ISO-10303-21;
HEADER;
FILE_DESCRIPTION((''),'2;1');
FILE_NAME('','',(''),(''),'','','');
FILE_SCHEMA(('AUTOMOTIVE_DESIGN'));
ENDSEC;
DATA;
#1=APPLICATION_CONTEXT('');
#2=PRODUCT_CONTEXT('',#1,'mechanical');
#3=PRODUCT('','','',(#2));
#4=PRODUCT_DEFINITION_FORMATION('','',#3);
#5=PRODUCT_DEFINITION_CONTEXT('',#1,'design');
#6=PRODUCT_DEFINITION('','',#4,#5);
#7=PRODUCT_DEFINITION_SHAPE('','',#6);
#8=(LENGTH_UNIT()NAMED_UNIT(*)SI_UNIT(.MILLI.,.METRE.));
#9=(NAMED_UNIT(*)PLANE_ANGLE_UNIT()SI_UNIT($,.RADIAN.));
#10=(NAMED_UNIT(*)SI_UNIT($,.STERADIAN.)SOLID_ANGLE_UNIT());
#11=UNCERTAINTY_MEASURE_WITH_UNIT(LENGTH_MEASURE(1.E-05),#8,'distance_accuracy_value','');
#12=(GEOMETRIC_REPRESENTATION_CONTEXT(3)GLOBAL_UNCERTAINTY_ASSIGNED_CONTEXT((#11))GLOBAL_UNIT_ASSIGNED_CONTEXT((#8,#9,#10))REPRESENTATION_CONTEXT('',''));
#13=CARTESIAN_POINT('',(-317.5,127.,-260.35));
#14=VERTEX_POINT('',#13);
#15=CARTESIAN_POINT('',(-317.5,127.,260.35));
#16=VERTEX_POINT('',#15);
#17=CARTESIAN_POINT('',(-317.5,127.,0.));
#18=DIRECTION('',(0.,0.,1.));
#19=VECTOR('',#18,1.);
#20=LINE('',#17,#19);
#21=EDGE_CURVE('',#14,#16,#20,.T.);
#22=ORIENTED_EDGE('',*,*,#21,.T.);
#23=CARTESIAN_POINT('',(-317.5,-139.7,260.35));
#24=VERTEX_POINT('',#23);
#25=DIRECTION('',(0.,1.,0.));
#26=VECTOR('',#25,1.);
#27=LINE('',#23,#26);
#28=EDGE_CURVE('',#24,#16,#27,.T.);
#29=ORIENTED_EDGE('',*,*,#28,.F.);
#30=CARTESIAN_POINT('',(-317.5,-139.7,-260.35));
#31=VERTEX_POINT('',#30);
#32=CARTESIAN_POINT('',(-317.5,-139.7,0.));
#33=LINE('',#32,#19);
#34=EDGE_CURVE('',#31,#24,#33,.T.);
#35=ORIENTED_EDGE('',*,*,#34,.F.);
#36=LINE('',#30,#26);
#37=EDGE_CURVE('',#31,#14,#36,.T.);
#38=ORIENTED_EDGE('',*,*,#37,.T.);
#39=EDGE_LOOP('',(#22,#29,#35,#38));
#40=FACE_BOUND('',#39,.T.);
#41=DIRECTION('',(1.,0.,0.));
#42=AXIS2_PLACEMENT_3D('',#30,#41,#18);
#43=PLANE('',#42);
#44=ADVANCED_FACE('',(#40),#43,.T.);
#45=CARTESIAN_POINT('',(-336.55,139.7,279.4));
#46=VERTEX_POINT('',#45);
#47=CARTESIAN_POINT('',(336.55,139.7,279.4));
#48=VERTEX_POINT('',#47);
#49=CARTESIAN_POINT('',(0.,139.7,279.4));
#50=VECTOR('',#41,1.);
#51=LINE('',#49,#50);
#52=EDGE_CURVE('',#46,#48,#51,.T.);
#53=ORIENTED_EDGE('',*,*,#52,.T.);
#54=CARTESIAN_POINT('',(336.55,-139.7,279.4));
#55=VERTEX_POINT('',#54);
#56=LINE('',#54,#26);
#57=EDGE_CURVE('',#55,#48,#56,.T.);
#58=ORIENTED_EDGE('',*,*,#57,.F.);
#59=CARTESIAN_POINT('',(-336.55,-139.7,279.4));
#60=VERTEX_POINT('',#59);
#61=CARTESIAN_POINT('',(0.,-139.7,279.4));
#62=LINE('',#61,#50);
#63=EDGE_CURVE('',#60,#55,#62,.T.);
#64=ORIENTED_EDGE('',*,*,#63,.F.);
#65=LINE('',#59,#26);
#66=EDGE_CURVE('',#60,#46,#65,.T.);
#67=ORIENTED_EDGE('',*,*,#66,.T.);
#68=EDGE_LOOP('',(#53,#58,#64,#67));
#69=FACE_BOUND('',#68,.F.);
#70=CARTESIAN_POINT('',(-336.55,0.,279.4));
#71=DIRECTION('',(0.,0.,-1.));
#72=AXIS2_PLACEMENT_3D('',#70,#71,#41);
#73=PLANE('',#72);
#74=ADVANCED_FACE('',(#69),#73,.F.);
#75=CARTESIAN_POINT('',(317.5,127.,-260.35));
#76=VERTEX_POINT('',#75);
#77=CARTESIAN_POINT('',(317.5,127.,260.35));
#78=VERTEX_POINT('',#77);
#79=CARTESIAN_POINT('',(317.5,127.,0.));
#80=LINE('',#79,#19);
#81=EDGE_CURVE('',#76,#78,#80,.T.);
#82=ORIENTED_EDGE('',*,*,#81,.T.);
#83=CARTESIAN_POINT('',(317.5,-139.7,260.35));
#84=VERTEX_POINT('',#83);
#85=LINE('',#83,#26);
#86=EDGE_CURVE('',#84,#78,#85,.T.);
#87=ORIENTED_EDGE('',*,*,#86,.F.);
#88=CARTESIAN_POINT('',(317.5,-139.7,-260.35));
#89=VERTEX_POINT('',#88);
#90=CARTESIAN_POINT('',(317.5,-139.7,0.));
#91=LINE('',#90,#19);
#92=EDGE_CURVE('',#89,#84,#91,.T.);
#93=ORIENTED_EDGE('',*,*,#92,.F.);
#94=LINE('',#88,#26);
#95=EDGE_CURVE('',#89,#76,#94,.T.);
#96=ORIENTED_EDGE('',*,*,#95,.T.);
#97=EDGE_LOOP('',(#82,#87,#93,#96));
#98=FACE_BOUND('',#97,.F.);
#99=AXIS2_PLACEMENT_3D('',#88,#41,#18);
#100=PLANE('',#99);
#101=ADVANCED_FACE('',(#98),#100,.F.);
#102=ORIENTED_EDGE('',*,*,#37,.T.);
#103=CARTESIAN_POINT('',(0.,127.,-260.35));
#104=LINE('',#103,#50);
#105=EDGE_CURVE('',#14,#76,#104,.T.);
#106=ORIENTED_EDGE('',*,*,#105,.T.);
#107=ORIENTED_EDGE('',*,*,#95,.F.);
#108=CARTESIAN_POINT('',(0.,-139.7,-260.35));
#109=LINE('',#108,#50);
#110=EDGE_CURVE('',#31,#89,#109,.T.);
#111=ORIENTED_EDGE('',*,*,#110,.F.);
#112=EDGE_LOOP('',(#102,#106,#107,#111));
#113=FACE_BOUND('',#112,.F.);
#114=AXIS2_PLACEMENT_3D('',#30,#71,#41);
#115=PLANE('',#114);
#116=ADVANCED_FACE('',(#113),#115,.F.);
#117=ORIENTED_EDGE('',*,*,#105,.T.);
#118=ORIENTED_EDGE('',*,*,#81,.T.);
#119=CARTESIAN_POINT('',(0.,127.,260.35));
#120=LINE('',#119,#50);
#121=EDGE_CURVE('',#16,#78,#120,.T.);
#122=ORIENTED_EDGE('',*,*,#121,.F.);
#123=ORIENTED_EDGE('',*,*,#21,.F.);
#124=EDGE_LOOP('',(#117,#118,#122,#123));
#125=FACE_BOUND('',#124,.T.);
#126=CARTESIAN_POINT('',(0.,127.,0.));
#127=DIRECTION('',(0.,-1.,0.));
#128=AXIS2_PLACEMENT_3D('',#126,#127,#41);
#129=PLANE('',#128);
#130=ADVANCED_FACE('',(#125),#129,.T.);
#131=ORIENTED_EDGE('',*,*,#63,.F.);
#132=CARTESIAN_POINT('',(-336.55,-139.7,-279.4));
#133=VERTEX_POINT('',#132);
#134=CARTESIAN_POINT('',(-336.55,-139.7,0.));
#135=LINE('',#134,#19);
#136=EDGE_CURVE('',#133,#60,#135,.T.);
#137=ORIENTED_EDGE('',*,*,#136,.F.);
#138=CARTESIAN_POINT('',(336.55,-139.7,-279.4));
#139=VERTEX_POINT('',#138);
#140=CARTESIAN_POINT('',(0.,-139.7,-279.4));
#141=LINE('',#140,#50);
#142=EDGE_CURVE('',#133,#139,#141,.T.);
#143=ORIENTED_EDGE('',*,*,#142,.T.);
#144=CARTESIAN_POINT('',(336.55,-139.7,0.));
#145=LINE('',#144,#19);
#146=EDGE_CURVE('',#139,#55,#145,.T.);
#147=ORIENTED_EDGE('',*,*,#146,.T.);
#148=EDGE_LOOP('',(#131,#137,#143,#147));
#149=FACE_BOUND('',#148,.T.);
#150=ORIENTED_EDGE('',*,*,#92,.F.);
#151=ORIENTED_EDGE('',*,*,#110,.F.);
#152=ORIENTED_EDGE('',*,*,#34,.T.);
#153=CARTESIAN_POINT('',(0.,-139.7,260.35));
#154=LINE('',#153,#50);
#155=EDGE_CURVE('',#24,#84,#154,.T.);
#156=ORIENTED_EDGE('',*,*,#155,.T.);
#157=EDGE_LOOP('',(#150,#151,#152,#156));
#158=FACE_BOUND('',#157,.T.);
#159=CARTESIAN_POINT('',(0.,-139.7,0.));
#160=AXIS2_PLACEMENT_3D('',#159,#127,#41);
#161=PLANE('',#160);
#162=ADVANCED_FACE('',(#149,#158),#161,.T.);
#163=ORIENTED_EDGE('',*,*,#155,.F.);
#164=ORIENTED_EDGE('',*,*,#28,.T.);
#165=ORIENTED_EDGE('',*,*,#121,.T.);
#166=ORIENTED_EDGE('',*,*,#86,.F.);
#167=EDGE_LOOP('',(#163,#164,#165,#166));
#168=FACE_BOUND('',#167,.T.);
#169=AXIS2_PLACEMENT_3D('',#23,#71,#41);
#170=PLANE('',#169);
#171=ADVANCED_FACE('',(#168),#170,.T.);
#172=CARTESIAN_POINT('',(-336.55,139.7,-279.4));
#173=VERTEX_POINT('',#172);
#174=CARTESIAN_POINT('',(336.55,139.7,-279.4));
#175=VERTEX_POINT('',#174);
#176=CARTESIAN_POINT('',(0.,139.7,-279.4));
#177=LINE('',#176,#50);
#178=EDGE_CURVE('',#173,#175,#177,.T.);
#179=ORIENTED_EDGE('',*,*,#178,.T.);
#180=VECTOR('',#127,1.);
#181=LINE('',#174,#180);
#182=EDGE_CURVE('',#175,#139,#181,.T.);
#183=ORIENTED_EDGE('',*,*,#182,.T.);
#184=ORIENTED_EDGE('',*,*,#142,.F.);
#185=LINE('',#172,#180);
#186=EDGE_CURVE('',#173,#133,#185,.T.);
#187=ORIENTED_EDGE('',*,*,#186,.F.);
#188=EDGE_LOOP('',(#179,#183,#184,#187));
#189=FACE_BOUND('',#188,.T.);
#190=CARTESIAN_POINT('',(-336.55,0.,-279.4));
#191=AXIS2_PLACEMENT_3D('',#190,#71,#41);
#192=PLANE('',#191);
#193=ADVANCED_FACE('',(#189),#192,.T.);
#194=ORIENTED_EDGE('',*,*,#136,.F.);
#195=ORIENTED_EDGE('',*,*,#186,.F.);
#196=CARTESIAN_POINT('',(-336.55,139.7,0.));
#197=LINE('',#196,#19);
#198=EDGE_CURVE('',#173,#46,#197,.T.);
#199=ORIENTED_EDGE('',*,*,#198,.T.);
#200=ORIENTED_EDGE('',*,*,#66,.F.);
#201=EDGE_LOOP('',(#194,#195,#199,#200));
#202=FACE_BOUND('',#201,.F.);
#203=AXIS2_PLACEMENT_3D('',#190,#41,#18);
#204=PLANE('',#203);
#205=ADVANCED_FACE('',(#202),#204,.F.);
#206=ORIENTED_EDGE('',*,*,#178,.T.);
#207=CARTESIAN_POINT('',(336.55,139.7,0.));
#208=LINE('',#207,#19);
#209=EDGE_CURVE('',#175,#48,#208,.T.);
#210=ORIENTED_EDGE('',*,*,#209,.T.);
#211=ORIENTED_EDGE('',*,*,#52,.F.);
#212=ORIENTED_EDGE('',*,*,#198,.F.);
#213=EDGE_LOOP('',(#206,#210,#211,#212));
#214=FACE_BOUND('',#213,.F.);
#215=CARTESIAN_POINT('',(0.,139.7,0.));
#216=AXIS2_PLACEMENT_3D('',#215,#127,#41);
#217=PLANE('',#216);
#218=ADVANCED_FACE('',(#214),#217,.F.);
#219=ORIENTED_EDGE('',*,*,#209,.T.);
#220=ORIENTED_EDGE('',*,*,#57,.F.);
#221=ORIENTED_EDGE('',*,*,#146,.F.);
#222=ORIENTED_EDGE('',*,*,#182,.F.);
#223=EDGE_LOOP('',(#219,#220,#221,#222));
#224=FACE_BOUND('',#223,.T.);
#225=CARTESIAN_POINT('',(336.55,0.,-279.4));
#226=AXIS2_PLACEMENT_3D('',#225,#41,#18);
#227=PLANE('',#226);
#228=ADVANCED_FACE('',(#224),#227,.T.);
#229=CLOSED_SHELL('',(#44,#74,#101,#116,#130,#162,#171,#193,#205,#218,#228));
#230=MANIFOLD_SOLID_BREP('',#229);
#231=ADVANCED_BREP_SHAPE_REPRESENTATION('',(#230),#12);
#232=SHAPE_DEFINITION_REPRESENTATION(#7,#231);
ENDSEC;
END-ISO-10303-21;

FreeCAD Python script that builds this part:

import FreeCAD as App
import Part
import Sketcher
Q = App.Units.Quantity

doc = App.newDocument("Part")
body = doc.addObject("PartDesign::Body", "Body")

# Sketch on XZ plane
sketch1 = body.newObject("Sketcher::SketchObject", "Sketch")
sketch1.AttachmentSupport = (doc.getObject("XZ_Plane"), [""])
sketch1.MapMode = "FlatFace"
sketch1.addGeometry([
    Part.LineSegment(App.Vector(-336.55, 279.4, 0), App.Vector(-336.55, -279.4, 0)),
    Part.LineSegment(App.Vector(-336.55, -279.4, 0), App.Vector(336.55, -279.4, 0)),
    Part.LineSegment(App.Vector(336.55, -279.4, 0), App.Vector(336.55, 279.4, 0)),
    Part.LineSegment(App.Vector(336.55, 279.4, 0), App.Vector(-336.55, 279.4, 0)),
], False)
sketch1.addConstraint([
    Sketcher.Constraint("Coincident", 0, 2, 1, 1),
    Sketcher.Constraint("Coincident", 1, 2, 2, 1),
    Sketcher.Constraint("Coincident", 2, 2, 3, 1),
    Sketcher.Constraint("Coincident", 3, 2, 0, 1),
    Sketcher.Constraint("Vertical", 0),
    Sketcher.Constraint("Horizontal", 1),
    Sketcher.Constraint("Vertical", 2),
    Sketcher.Constraint("Horizontal", 3),
    Sketcher.Constraint("Symmetric", 0, 2, 2, 2, -1, 1),
    Sketcher.Constraint("DistanceY", 0, 2, 0, 1, Q("22 in")),
    Sketcher.Constraint("DistanceX", 1, 1, 1, 2, Q("26.5 in")),
])
pad1 = body.newObject("PartDesign::Pad", "Pad")
pad1.Profile = sketch1
pad1.Length = Q("11 in")
pad1.Midplane = True

# Sketch on XZ plane
sketch2 = body.newObject("Sketcher::SketchObject", "Sketch001")
sketch2.AttachmentSupport = (doc.getObject("XZ_Plane"), [""])
sketch2.MapMode = "FlatFace"
sketch2.AttachmentOffset = App.Placement(App.Vector(0, 0, 5.5 * 25.4), App.Rotation())
sketch2.addGeometry([
    Part.LineSegment(App.Vector(-317.5, 260.35, 0), App.Vector(-317.5, -260.35, 0)),
    Part.LineSegment(App.Vector(-317.5, -260.35, 0), App.Vector(317.5, -260.35, 0)),
    Part.LineSegment(App.Vector(317.5, -260.35, 0), App.Vector(317.5, 260.35, 0)),
    Part.LineSegment(App.Vector(317.5, 260.35, 0), App.Vector(-317.5, 260.35, 0)),
], False)
sketch2.addConstraint([
    Sketcher.Constraint("Coincident", 0, 2, 1, 1),
    Sketcher.Constraint("Coincident", 1, 2, 2, 1),
    Sketcher.Constraint("Coincident", 2, 2, 3, 1),
    Sketcher.Constraint("Coincident", 3, 2, 0, 1),
    Sketcher.Constraint("Vertical", 0),
    Sketcher.Constraint("Horizontal", 1),
    Sketcher.Constraint("Vertical", 2),
    Sketcher.Constraint("Horizontal", 3),
    Sketcher.Constraint("Symmetric", 0, 2, 2, 2, -1, 1),
    Sketcher.Constraint("DistanceX", 1, 1, 1, 2, Q("25 in")),
    Sketcher.Constraint("DistanceY", 0, 2, 0, 1, Q("20.5 in")),
])
pocket1 = body.newObject("PartDesign::Pocket", "Pocket")
pocket1.Profile = sketch2
pocket1.Length = Q("10.5 in")

doc.recompute()
